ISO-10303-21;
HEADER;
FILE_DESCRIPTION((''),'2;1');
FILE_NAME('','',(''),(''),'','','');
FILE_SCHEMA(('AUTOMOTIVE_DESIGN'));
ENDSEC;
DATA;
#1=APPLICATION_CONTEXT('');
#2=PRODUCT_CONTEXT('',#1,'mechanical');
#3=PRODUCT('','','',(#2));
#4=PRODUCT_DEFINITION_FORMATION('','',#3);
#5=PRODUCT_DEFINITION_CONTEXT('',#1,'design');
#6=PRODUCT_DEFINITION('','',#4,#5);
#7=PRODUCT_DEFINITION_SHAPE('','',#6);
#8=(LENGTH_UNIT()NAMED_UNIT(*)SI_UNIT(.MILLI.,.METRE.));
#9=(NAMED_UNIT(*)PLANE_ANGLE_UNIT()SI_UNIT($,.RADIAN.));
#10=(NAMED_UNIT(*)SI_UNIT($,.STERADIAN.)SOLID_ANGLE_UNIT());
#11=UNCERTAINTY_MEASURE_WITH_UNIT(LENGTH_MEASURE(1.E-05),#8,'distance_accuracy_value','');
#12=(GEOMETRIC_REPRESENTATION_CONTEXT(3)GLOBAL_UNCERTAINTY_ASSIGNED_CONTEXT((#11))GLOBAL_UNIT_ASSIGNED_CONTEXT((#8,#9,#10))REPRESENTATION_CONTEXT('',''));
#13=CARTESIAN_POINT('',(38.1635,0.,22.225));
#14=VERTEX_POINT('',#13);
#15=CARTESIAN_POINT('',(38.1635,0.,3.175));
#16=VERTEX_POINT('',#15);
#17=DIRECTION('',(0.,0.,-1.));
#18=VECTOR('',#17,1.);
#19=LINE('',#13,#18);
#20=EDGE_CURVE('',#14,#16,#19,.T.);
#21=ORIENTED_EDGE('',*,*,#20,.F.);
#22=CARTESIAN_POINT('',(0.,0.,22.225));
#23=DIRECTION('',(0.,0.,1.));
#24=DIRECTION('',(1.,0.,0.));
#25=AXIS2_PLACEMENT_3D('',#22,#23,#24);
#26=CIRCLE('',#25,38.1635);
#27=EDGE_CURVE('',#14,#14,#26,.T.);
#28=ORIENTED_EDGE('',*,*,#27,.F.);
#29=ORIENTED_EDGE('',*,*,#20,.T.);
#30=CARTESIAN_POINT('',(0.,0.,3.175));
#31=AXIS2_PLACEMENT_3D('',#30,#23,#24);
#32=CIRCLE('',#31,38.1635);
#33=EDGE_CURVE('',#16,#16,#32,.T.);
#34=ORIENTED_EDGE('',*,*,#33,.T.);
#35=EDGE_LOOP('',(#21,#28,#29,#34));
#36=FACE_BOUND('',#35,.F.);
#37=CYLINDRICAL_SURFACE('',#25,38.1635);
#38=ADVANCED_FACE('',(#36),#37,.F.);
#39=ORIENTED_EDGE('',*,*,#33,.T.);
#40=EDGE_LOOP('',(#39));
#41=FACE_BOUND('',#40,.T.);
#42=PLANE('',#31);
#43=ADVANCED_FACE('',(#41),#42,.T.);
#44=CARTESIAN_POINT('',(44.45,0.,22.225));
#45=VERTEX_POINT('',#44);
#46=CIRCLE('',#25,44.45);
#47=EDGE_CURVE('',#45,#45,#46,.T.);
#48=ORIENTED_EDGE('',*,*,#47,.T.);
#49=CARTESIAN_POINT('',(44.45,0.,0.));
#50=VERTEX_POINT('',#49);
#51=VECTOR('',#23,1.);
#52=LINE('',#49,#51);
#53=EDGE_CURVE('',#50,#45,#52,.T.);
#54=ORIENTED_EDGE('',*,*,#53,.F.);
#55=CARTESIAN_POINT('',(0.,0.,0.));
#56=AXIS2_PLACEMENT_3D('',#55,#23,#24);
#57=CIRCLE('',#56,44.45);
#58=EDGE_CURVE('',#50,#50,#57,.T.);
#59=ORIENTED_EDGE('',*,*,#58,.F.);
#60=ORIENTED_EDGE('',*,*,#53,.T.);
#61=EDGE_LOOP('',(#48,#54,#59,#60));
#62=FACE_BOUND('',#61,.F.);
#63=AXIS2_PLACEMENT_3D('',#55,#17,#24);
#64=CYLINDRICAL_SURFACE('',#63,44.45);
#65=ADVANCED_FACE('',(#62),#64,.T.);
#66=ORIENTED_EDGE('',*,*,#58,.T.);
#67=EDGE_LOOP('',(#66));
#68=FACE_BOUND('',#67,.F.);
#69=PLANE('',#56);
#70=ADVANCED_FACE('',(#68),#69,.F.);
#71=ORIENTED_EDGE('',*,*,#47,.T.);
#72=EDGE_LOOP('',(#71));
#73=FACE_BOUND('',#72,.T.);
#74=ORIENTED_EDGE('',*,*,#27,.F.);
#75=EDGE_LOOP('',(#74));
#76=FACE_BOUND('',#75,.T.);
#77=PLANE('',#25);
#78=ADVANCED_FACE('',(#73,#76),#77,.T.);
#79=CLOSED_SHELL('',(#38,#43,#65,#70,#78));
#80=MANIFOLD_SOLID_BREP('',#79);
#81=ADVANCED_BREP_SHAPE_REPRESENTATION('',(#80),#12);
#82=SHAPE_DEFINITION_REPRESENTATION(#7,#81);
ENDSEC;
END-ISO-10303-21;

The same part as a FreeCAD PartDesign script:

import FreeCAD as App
import Part
import Sketcher

V = App.Vector
Q = App.Units.Quantity

doc = App.newDocument("Part")
body = doc.addObject("PartDesign::Body", "Body")

sketch1 = body.newObject("Sketcher::SketchObject", "Sketch")
sketch1.AttachmentSupport = (doc.getObject("XY_Plane"), [""])
sketch1.MapMode = "FlatFace"
sketch1.addGeometry(Part.Circle(V(0, 0, 0), V(0, 0, 1), 44.45), False)
sketch1.addConstraint(Sketcher.Constraint("Coincident", 0, 3, -1, 1))
sketch1.addConstraint(Sketcher.Constraint("Diameter", 0, Q("3.5 in")))
pad1 = body.newObject("PartDesign::Pad", "Pad")
pad1.Profile = sketch1
pad1.Length = Q("0.875 in")

sketch2 = body.newObject("Sketcher::SketchObject", "Sketch001")
sketch2.AttachmentSupport = (doc.getObject("XY_Plane"), [""])
sketch2.MapMode = "FlatFace"
sketch2.AttachmentOffset = App.Placement(V(0, 0, 0.875 * 25.4), App.Rotation())
sketch2.addGeometry(Part.Circle(V(0, 0, 0), V(0, 0, 1), 38.1635), False)
sketch2.addConstraint(Sketcher.Constraint("Coincident", 0, 3, -1, 1))
sketch2.addConstraint(Sketcher.Constraint("Diameter", 0, Q("3.005 in")))
pocket1 = body.newObject("PartDesign::Pocket", "Pocket")
pocket1.Profile = sketch2
pocket1.Length = Q("0.75 in")

doc.recompute()
